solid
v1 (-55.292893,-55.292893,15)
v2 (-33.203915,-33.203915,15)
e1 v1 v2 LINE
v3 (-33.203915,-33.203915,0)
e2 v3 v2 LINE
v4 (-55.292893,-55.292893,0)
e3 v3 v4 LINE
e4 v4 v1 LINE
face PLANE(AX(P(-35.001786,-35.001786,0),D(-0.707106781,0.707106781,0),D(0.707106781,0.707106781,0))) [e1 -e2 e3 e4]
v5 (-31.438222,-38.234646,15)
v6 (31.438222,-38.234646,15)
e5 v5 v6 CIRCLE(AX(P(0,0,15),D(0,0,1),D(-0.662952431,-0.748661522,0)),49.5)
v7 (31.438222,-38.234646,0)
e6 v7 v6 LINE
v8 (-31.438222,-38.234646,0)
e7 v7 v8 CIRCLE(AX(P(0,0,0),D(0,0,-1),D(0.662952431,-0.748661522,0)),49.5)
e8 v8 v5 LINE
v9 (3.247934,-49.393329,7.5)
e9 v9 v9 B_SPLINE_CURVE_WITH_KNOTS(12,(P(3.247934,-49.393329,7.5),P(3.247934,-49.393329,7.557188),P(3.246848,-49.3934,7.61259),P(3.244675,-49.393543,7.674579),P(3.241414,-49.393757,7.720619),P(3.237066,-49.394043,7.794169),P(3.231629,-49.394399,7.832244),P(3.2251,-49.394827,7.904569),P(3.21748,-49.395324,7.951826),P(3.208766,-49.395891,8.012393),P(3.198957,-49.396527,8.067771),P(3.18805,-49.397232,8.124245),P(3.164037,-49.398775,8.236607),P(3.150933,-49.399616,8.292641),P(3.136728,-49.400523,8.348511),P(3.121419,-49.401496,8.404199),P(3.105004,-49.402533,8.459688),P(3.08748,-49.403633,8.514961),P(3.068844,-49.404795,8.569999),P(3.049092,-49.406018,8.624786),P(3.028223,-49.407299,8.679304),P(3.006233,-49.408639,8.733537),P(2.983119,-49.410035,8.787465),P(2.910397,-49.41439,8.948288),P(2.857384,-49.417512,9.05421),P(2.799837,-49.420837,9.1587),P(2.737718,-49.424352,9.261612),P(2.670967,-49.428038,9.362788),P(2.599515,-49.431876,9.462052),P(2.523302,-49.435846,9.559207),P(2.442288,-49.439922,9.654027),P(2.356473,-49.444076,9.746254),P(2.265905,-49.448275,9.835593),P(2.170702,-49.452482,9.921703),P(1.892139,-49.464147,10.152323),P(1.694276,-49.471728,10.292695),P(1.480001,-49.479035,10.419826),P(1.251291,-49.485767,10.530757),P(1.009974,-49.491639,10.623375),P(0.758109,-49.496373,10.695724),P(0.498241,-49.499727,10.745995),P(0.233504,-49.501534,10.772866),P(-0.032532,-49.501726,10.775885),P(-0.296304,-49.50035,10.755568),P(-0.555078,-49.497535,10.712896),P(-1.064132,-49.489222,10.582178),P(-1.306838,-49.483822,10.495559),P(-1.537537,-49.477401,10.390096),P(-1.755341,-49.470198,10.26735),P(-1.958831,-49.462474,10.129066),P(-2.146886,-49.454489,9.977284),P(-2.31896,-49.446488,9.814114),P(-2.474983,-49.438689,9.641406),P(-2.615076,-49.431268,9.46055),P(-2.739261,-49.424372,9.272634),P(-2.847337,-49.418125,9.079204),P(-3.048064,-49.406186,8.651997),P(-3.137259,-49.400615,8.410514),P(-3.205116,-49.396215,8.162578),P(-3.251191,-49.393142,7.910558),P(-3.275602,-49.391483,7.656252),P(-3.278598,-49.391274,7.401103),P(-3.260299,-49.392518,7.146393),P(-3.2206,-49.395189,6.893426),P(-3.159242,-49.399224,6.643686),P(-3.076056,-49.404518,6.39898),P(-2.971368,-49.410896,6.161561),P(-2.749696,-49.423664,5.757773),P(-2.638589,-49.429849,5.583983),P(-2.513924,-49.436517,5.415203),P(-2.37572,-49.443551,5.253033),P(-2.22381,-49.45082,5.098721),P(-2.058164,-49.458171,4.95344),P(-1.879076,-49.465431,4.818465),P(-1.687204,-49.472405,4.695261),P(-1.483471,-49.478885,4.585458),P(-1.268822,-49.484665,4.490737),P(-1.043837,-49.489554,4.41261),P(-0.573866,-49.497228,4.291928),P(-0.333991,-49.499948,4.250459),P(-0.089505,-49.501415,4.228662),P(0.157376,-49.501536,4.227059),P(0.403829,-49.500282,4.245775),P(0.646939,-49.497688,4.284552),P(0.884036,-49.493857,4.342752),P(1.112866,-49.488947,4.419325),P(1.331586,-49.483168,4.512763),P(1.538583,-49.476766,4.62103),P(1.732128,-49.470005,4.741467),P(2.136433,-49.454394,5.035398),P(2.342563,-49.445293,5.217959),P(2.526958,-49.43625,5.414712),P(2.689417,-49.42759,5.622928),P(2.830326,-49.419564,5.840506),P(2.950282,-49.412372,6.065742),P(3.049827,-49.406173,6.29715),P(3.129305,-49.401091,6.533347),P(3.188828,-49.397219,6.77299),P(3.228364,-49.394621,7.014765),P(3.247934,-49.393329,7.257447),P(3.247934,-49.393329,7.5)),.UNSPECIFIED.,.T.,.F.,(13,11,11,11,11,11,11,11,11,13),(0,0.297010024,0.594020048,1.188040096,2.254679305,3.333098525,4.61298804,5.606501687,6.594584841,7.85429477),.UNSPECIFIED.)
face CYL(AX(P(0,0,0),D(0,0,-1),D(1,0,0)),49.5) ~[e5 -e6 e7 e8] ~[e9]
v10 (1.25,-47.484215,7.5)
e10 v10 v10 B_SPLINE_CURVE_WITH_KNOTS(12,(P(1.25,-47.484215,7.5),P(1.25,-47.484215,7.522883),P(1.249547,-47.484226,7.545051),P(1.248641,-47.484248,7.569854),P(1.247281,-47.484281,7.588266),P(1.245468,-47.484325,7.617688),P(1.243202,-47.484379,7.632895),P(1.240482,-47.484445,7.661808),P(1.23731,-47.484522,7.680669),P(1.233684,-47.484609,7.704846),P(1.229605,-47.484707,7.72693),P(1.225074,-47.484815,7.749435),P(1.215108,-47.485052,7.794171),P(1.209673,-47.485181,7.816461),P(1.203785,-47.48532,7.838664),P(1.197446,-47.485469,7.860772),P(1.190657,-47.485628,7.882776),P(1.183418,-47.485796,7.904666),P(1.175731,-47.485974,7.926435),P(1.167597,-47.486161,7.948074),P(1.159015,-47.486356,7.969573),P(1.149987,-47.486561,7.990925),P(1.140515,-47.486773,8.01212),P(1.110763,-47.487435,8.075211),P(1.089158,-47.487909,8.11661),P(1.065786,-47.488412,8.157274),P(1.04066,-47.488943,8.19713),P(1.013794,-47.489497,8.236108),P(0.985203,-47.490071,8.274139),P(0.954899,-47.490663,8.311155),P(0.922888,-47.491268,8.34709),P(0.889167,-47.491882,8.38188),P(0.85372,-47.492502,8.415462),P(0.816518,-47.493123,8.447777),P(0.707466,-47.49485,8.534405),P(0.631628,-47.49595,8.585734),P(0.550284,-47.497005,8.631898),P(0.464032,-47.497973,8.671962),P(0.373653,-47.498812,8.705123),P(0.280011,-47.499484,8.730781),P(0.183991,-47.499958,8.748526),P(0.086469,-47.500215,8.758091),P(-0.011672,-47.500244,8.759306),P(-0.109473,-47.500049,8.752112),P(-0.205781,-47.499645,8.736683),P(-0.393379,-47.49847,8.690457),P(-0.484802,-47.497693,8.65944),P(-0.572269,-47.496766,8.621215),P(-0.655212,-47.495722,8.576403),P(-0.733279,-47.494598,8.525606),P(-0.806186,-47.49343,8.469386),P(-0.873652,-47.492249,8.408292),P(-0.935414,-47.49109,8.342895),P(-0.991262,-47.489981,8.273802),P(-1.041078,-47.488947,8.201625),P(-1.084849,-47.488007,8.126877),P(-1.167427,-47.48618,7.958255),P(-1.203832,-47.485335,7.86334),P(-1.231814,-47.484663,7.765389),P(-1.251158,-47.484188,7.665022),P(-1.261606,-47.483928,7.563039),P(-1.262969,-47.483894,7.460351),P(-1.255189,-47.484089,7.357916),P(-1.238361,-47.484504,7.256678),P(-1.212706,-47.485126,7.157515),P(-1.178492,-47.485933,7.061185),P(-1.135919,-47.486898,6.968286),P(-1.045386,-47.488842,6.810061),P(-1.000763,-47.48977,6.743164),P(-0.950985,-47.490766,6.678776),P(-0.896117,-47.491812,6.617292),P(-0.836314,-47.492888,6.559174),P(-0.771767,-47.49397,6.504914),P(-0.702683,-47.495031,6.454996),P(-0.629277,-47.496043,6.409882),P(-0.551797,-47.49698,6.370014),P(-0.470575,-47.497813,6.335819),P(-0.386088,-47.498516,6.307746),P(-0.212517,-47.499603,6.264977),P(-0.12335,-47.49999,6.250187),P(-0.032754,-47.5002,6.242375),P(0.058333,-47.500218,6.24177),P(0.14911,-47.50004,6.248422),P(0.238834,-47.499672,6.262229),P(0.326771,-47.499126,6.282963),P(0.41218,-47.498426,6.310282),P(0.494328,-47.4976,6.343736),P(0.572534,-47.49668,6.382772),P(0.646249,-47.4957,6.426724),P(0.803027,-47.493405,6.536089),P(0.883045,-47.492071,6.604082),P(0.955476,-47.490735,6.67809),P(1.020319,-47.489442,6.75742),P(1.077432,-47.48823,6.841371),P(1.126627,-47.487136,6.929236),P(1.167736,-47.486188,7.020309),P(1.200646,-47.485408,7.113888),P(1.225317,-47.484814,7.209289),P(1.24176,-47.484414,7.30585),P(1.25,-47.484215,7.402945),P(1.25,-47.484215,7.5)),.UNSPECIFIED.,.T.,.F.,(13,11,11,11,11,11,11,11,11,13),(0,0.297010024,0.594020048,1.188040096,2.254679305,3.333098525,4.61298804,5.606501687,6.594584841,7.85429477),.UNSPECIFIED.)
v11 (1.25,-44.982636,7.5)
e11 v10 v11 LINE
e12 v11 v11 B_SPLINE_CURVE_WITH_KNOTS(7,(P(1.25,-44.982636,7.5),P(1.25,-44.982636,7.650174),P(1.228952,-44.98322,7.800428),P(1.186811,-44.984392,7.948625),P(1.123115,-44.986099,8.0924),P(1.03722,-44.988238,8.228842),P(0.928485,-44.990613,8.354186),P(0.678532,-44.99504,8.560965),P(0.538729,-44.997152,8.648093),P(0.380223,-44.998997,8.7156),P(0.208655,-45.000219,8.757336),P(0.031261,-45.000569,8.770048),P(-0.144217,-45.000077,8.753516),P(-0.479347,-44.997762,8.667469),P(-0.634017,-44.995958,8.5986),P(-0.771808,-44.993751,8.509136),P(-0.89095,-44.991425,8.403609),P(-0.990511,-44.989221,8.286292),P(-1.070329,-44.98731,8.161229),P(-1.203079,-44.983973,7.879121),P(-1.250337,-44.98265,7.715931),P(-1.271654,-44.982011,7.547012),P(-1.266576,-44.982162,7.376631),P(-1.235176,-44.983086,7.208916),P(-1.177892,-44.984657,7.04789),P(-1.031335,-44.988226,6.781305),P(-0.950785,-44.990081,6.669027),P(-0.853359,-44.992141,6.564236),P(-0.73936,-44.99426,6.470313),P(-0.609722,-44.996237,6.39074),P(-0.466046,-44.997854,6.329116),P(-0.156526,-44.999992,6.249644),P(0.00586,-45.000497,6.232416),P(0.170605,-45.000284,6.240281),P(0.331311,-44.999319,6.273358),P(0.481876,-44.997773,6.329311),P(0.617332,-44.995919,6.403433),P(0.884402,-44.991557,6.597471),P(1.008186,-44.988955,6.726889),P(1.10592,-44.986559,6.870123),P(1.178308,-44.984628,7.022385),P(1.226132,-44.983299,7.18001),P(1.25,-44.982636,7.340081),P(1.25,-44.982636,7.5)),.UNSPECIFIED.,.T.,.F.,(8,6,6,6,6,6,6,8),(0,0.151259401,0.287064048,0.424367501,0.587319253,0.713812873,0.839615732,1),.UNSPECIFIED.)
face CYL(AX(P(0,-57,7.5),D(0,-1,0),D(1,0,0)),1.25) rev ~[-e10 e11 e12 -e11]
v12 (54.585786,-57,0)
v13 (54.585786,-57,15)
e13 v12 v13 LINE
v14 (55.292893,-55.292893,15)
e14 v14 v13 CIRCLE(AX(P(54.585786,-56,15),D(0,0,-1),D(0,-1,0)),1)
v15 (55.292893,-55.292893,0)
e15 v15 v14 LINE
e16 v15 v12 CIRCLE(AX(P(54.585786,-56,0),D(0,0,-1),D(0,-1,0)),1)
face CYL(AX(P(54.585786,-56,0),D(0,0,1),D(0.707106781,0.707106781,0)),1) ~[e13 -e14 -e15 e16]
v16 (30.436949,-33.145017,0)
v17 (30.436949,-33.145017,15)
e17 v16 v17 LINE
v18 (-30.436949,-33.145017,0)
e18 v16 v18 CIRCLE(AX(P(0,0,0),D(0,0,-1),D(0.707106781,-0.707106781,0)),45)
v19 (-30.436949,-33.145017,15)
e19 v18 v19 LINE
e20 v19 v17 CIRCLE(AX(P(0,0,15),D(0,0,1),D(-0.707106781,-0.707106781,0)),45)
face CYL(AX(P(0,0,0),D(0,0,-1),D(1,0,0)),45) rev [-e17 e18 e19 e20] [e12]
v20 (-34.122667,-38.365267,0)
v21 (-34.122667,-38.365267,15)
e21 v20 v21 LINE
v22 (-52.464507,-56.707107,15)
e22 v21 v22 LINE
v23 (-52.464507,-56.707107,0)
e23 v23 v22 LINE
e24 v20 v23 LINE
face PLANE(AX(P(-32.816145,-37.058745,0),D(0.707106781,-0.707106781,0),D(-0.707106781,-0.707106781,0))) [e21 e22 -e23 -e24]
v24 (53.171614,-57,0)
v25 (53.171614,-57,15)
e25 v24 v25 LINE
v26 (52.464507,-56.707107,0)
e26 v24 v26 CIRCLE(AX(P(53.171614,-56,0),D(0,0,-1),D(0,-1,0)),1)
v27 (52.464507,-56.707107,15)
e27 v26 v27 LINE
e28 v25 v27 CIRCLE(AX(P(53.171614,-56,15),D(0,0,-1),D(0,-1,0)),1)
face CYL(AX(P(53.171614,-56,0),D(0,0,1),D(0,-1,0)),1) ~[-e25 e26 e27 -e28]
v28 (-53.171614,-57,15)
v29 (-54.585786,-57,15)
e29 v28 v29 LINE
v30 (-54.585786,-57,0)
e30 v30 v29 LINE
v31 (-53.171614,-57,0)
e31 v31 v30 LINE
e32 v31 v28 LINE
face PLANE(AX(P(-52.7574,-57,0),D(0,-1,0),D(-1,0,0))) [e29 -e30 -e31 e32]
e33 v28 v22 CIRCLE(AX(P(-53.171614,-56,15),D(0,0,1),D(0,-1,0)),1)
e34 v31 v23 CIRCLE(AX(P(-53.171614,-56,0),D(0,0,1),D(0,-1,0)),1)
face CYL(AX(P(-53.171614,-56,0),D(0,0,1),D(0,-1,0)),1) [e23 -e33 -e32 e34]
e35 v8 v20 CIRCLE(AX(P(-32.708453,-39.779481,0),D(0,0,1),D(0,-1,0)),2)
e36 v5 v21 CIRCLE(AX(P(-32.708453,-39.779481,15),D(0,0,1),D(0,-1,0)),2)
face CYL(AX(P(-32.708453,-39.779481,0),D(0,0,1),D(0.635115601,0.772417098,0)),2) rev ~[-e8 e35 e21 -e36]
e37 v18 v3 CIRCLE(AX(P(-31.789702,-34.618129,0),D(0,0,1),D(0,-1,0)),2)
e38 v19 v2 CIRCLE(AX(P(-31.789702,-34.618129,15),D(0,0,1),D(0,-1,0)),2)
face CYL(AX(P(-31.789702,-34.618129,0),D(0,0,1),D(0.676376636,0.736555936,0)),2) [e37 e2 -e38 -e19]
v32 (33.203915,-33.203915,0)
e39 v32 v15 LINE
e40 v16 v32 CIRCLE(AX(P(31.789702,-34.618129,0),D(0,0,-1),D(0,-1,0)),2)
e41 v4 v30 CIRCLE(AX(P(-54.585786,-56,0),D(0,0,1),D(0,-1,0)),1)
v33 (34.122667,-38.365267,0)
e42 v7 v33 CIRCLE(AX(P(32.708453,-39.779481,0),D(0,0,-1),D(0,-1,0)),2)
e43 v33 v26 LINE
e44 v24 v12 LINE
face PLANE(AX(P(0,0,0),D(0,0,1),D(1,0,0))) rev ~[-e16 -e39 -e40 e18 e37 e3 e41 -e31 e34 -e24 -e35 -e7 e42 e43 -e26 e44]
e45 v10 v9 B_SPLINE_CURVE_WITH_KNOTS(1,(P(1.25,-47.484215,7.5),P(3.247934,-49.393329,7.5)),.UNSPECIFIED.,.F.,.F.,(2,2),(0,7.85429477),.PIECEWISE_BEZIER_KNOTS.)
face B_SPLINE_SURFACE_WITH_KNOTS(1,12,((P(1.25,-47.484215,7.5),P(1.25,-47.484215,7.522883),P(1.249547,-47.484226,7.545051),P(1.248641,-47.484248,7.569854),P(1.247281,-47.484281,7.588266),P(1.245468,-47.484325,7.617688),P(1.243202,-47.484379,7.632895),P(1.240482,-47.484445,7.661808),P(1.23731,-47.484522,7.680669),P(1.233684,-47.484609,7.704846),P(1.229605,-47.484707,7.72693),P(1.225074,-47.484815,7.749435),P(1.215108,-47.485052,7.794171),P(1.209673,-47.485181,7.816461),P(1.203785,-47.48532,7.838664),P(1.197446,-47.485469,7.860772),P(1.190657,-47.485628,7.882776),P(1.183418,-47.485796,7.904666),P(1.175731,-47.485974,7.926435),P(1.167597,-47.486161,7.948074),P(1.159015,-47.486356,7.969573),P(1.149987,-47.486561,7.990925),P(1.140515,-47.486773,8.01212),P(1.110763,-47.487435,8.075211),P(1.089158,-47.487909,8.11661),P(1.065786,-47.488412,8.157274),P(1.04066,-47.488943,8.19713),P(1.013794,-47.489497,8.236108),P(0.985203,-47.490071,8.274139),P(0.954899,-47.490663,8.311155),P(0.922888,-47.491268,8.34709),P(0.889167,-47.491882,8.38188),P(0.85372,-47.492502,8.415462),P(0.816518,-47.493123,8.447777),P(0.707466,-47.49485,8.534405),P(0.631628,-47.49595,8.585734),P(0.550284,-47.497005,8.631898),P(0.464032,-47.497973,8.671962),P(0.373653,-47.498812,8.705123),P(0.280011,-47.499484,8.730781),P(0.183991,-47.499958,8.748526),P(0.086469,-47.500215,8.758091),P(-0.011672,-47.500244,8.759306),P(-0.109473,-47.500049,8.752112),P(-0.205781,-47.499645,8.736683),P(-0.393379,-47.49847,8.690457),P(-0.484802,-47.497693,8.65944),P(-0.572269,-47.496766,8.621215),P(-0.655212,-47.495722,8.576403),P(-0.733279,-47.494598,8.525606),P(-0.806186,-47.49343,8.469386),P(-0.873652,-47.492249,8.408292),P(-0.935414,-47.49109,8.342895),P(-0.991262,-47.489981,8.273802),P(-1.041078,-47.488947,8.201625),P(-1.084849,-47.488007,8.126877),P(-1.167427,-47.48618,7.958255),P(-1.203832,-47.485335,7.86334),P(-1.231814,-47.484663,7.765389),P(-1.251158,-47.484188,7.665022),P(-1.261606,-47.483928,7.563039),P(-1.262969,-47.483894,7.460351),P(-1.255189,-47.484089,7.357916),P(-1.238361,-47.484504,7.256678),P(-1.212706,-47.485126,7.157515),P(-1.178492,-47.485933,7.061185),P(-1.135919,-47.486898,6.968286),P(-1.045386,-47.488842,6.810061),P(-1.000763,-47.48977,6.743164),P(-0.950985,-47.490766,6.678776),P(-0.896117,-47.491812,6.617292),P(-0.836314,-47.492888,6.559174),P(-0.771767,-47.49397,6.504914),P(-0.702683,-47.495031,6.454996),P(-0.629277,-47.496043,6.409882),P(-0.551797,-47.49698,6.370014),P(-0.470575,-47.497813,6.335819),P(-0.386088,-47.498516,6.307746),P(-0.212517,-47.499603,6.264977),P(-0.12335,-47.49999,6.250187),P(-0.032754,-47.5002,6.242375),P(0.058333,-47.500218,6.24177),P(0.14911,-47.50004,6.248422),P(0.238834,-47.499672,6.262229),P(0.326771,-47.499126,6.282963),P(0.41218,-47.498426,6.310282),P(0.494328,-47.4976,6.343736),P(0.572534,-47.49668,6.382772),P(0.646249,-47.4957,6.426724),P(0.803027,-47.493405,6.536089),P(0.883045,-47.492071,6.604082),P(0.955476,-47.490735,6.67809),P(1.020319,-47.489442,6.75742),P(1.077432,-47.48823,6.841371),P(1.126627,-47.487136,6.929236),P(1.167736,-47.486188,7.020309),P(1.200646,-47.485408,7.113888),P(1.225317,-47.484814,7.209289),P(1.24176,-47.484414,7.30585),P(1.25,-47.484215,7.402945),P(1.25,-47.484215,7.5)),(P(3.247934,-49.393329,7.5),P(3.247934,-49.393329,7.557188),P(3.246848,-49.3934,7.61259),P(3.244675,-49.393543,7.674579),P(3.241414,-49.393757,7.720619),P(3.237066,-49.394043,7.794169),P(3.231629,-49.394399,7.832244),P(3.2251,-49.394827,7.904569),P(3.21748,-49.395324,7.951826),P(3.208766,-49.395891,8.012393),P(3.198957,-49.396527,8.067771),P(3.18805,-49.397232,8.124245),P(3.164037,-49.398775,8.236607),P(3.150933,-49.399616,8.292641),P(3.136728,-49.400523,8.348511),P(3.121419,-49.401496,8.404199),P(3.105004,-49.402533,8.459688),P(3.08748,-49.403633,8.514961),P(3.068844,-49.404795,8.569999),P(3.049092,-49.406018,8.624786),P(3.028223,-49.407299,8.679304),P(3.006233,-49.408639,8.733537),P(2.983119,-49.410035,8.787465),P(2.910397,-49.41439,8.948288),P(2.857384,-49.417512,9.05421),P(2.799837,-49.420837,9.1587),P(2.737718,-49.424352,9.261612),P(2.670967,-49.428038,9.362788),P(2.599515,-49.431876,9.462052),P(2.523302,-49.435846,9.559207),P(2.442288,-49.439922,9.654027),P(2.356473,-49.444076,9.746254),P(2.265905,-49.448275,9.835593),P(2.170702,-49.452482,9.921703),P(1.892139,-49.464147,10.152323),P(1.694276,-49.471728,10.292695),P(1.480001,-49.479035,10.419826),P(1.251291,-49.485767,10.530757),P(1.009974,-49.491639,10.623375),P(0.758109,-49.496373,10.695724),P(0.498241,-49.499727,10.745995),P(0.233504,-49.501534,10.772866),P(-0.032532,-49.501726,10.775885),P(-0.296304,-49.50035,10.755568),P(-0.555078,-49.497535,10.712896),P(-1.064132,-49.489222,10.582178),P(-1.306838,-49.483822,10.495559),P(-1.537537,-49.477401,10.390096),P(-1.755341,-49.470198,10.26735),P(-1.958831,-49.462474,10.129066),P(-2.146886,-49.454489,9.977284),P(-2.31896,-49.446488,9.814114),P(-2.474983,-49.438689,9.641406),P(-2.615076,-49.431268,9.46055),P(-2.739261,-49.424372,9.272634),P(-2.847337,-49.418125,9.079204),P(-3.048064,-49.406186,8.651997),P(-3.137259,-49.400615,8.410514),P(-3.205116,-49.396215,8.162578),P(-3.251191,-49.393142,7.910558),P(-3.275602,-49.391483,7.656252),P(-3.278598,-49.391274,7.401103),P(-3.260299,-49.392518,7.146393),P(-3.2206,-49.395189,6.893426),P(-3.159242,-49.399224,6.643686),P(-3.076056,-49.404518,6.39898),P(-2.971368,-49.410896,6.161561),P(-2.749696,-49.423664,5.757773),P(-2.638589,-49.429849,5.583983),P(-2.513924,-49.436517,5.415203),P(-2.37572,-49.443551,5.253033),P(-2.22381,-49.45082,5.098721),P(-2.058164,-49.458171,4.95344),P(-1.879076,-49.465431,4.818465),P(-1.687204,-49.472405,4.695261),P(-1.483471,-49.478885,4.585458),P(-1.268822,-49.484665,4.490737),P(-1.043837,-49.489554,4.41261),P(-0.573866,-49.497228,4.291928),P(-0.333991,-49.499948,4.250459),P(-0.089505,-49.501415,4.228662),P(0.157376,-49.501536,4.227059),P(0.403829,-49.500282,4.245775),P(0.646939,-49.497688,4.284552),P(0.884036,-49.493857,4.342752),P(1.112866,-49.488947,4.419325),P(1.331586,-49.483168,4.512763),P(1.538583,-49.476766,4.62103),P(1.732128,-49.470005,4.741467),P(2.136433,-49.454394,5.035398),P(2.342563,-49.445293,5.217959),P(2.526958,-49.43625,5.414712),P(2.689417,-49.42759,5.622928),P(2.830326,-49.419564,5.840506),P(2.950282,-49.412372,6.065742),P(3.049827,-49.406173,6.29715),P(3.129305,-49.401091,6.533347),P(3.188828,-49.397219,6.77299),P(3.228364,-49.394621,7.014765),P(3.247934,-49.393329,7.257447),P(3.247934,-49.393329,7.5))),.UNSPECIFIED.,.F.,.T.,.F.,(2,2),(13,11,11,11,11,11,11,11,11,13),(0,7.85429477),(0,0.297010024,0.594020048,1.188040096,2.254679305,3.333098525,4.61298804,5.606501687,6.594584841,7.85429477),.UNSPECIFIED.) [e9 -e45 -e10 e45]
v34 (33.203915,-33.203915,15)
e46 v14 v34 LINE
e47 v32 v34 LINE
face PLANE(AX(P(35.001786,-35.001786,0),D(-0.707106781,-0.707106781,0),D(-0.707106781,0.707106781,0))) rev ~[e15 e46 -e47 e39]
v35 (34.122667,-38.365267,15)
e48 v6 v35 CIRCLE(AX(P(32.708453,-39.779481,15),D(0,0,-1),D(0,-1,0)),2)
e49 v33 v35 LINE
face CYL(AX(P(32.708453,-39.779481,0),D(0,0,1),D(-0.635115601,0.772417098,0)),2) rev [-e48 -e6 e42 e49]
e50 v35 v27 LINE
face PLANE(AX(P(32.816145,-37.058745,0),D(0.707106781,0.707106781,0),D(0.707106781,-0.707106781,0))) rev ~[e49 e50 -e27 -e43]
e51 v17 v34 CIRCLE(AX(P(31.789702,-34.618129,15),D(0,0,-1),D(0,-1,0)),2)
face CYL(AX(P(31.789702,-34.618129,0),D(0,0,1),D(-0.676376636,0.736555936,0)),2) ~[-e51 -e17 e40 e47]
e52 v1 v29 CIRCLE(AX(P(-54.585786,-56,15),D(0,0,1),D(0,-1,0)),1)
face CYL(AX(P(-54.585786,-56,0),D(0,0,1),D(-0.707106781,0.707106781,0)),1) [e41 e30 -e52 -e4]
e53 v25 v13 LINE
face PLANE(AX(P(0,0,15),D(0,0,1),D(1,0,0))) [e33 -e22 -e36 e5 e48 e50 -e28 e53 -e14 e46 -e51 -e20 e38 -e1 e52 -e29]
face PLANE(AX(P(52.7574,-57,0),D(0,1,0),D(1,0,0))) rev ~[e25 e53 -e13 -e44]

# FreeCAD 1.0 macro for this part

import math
import FreeCAD as App
import Part
import Sketcher


def edges_at(feature, points):
    """Names of the edges that pass closest to the given points."""
    edges = feature.Shape.Edges
    near = lambda p: min(range(len(edges)), key=lambda i: edges[i].distToShape(Part.Vertex(*p))[0])
    return sorted({f"Edge{near(p) + 1}" for p in points})

doc = App.newDocument("Part")
body = doc.addObject("PartDesign::Body", "Body")

# Sketch on XY plane
sketch1 = body.newObject("Sketcher::SketchObject", "Sketch")
sketch1.AttachmentSupport = (doc.getObject("XY_Plane"), [""])
sketch1.MapMode = "FlatFace"
sketch1.addGeometry([
    Part.LineSegment(App.Vector(-31.8198, -31.8198, 0), App.Vector(-57, -57, 0)),  # 0
    Part.LineSegment(App.Vector(-57, -57, 0), App.Vector(-52.7574, -57, 0)),  # 1
    Part.LineSegment(App.Vector(-52.7574, -57, 0), App.Vector(-32.816145, -37.058745, 0)),  # 2
    Part.ArcOfCircle(Part.Circle(App.Vector(0, 0, 0), App.Vector(0, 0, 1), 49.5), math.radians(-131.525433), math.radians(-48.474567)),  # 3
    Part.LineSegment(App.Vector(32.816145, -37.058745, 0), App.Vector(52.7574, -57, 0)),  # 4
    Part.LineSegment(App.Vector(52.7574, -57, 0), App.Vector(57, -57, 0)),  # 5
    Part.LineSegment(App.Vector(57, -57, 0), App.Vector(31.8198, -31.8198, 0)),  # 6
    Part.ArcOfCircle(Part.Circle(App.Vector(0, 0, 0), App.Vector(0, 0, 1), 45), math.radians(-135), math.radians(-45)),  # 7
], False)
sketch1.addConstraint([
    Sketcher.Constraint("Coincident", 0, 2, 1, 1),
    Sketcher.Constraint("Coincident", 1, 2, 2, 1),
    Sketcher.Constraint("Coincident", 2, 2, 3, 1),
    Sketcher.Constraint("Coincident", 3, 2, 4, 1),
    Sketcher.Constraint("Coincident", 4, 2, 5, 1),
    Sketcher.Constraint("Coincident", 5, 2, 6, 1),
    Sketcher.Constraint("Coincident", 6, 2, 7, 2),
    Sketcher.Constraint("Coincident", 7, 1, 0, 1),
    Sketcher.Constraint("Horizontal", 1),
    Sketcher.Constraint("Horizontal", 5),
    Sketcher.Constraint("Coincident", 3, 3, -1, 1),
    Sketcher.Constraint("Coincident", 7, 3, -1, 1),
    Sketcher.Constraint("Symmetric", 1, 2, 4, 2, -2),
    Sketcher.Constraint("Parallel", 0, 2),
    Sketcher.Constraint("Perpendicular", 2, 4),
    Sketcher.Constraint("Parallel", 4, 6),
    Sketcher.Constraint("Horizontal", 2, 2, 3, 2),
    Sketcher.Constraint("Horizontal", 6, 2, 7, 1),
    Sketcher.Constraint("Radius", 7, 45.0),
    Sketcher.Constraint("Radius", 3, 49.5),
    Sketcher.Constraint("DistanceX", 0, 2, -1, 1, 57.0),
    Sketcher.Constraint("DistanceY", 0, 2, -1, 1, 57.0),
    Sketcher.Constraint("DistanceX", 1, 1, 1, 2, 4.2426),
])
pad1 = body.newObject("PartDesign::Pad", "Pad")
pad1.Profile = sketch1
pad1.Length = 15

# Sketch on XZ plane
sketch2 = body.newObject("Sketcher::SketchObject", "Sketch001")
sketch2.AttachmentSupport = (doc.getObject("XZ_Plane"), [""])
sketch2.MapMode = "FlatFace"
sketch2.AttachmentOffset = App.Placement(App.Vector(0, 0, 57), App.Rotation())
sketch2.addGeometry(Part.Circle(App.Vector(0, 7.5, 0), App.Vector(0, 0, 1), 1.25), False)
sketch2.addConstraint([
    Sketcher.Constraint("PointOnObject", 0, 3, -2),
    Sketcher.Constraint("Diameter", 0, 2.5),
    Sketcher.Constraint("DistanceY", -1, 1, 0, 3, 7.5),
])
pocket1 = body.newObject("PartDesign::Pocket", "Pocket")
pocket1.Profile = sketch2
pocket1.Length = 21.25
doc.recompute()

chamfer = body.newObject("PartDesign::Chamfer", "Chamfer")
chamfer.Base = (pocket1, edges_at(pocket1, [(-1.25, -49.484, 7.504)]))
chamfer.Size = 2
doc.recompute()

fillet = body.newObject("PartDesign::Fillet", "Fillet")
fillet.Base = (chamfer, edges_at(chamfer, [
    (-32.816, -37.059, 7.5),
    (32.816, -37.059, 7.5),
    (-31.82, -31.82, 7.5),
    (31.82, -31.82, 7.5),
]))
fillet.Radius = 2
doc.recompute()

fillet2 = body.newObject("PartDesign::Fillet", "Fillet001")
fillet2.Base = (fillet, edges_at(fillet, [
    (-52.757, -57, 7.5),
    (-57, -57, 7.5),
    (57, -57, 7.5),
    (52.757, -57, 7.5),
]))
fillet2.Radius = 1

doc.recompute()
